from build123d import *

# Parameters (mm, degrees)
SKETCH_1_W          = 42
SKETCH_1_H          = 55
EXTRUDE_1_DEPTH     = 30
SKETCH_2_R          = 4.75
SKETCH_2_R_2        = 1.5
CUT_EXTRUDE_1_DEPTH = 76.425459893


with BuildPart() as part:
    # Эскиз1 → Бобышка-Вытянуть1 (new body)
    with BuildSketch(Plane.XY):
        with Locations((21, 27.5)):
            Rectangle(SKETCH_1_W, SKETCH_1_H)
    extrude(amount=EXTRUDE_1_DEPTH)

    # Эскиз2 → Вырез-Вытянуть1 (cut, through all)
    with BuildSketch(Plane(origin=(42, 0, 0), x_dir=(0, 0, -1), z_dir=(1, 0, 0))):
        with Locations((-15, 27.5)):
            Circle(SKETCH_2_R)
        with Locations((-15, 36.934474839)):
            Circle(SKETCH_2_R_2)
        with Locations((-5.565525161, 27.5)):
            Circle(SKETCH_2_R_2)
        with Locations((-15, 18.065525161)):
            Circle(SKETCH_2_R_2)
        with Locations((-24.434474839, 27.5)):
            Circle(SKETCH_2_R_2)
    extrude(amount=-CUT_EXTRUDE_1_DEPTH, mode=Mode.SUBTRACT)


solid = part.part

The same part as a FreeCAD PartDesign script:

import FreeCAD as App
import Part
import Sketcher
from FreeCAD import Vector

doc = App.newDocument("Part")
params = doc.addObject("Spreadsheet::Sheet", "Params")
for row, (alias, value) in enumerate([
    ("sketch1_width", "42 mm"),
    ("sketch1_height", "55 mm"),
    ("pad1_length", "30 mm"),
    ("sketch2_diameter", "3 mm"),
    ("sketch2_diameter2", "9.5 mm"),
], start=1):
    params.set(f"A{row}", alias)
    params.set(f"B{row}", "=" + value)
    params.setAlias(f"B{row}", alias)

body = doc.addObject("PartDesign::Body", "Body")

# Sketch on XY plane
sketch1 = doc.addObject("Sketcher::SketchObject", "Sketch")
body.addObject(sketch1)
sketch1.AttachmentSupport = (doc.XY_Plane, [""])
sketch1.MapMode = "FlatFace"
sketch1.addGeometry([
    Part.LineSegment(Vector(0, 55, 0), Vector(0, 0, 0)),
    Part.LineSegment(Vector(0, 0, 0), Vector(42, 0, 0)),
    Part.LineSegment(Vector(42, 0, 0), Vector(42, 55, 0)),
    Part.LineSegment(Vector(42, 55, 0), Vector(0, 55, 0)),
], False)
sketch1.addConstraint([
    Sketcher.Constraint("Coincident", 0, 2, 1, 1),
    Sketcher.Constraint("Coincident", 1, 2, 2, 1),
    Sketcher.Constraint("Coincident", 2, 2, 3, 1),
    Sketcher.Constraint("Coincident", 3, 2, 0, 1),
    Sketcher.Constraint("Vertical", 0),
    Sketcher.Constraint("Horizontal", 1),
    Sketcher.Constraint("Vertical", 2),
    Sketcher.Constraint("Horizontal", 3),
    Sketcher.Constraint("Coincident", 0, 2, -1, 1),
    Sketcher.Constraint("DistanceX", 1, 1, 1, 2, 42.0),
    Sketcher.Constraint("DistanceY", 0, 2, 0, 1, 55.0),
])
sketch1.setExpression("Constraints[9]", "Params.sketch1_width")
sketch1.setExpression("Constraints[10]", "Params.sketch1_height")
pad1 = doc.addObject("PartDesign::Pad", "Pad")
body.addObject(pad1)
pad1.Profile = sketch1
pad1.setExpression("Length", "Params.pad1_length")

# Sketch on YZ plane
sketch2 = doc.addObject("Sketcher::SketchObject", "Sketch001")
body.addObject(sketch2)
sketch2.AttachmentSupport = (doc.YZ_Plane, [""])
sketch2.MapMode = "FlatFace"
sketch2.AttachmentOffset = App.Placement(Vector(0, 0, 42), App.Rotation())
sketch2.addGeometry([
    Part.Circle(Vector(27.5, 15, 0), Vector(0, 0, 1), 4.8),  # 0
    Part.Circle(Vector(36.9, 15, 0), Vector(0, 0, 1), 1.5),  # 1
    Part.Circle(Vector(27.5, 5.6, 0), Vector(0, 0, 1), 1.5),  # 2
    Part.Circle(Vector(18.1, 15, 0), Vector(0, 0, 1), 1.5),  # 3
    Part.Circle(Vector(27.5, 24.4, 0), Vector(0, 0, 1), 1.5),  # 4
], False)
sketch2.addConstraint([
    Sketcher.Constraint("Equal", 1, 2),
    Sketcher.Constraint("Equal", 2, 3),
    Sketcher.Constraint("Equal", 3, 4),
    Sketcher.Constraint("Horizontal", 0, 3, 1, 3),
    Sketcher.Constraint("Horizontal", 1, 3, 3, 3),
    Sketcher.Constraint("Vertical", 0, 3, 2, 3),
    Sketcher.Constraint("Vertical", 2, 3, 4, 3),
    Sketcher.Constraint("Diameter", 1, 3.0),
    Sketcher.Constraint("Diameter", 0, 9.5),
    Sketcher.Constraint("DistanceY", -1, 1, 0, 3, 15.0),
    Sketcher.Constraint("DistanceX", -1, 1, 0, 3, 27.5),
    Sketcher.Constraint("DistanceX", 3, 3, 1, 3, 18.86895),
    Sketcher.Constraint("DistanceY", 2, 3, 4, 3, 18.86895),
    Sketcher.Constraint("DistanceX", -1, 1, 1, 3, 36.934475),
    Sketcher.Constraint("DistanceY", -1, 1, 2, 3, 5.565525),
])
sketch2.setExpression("Constraints[7]", "Params.sketch2_diameter")
sketch2.setExpression("Constraints[8]", "Params.sketch2_diameter2")
pocket1 = doc.addObject("PartDesign::Pocket", "Pocket")
body.addObject(pocket1)
pocket1.Profile = sketch2
pocket1.Type = "ThroughAll"

doc.recompute()
